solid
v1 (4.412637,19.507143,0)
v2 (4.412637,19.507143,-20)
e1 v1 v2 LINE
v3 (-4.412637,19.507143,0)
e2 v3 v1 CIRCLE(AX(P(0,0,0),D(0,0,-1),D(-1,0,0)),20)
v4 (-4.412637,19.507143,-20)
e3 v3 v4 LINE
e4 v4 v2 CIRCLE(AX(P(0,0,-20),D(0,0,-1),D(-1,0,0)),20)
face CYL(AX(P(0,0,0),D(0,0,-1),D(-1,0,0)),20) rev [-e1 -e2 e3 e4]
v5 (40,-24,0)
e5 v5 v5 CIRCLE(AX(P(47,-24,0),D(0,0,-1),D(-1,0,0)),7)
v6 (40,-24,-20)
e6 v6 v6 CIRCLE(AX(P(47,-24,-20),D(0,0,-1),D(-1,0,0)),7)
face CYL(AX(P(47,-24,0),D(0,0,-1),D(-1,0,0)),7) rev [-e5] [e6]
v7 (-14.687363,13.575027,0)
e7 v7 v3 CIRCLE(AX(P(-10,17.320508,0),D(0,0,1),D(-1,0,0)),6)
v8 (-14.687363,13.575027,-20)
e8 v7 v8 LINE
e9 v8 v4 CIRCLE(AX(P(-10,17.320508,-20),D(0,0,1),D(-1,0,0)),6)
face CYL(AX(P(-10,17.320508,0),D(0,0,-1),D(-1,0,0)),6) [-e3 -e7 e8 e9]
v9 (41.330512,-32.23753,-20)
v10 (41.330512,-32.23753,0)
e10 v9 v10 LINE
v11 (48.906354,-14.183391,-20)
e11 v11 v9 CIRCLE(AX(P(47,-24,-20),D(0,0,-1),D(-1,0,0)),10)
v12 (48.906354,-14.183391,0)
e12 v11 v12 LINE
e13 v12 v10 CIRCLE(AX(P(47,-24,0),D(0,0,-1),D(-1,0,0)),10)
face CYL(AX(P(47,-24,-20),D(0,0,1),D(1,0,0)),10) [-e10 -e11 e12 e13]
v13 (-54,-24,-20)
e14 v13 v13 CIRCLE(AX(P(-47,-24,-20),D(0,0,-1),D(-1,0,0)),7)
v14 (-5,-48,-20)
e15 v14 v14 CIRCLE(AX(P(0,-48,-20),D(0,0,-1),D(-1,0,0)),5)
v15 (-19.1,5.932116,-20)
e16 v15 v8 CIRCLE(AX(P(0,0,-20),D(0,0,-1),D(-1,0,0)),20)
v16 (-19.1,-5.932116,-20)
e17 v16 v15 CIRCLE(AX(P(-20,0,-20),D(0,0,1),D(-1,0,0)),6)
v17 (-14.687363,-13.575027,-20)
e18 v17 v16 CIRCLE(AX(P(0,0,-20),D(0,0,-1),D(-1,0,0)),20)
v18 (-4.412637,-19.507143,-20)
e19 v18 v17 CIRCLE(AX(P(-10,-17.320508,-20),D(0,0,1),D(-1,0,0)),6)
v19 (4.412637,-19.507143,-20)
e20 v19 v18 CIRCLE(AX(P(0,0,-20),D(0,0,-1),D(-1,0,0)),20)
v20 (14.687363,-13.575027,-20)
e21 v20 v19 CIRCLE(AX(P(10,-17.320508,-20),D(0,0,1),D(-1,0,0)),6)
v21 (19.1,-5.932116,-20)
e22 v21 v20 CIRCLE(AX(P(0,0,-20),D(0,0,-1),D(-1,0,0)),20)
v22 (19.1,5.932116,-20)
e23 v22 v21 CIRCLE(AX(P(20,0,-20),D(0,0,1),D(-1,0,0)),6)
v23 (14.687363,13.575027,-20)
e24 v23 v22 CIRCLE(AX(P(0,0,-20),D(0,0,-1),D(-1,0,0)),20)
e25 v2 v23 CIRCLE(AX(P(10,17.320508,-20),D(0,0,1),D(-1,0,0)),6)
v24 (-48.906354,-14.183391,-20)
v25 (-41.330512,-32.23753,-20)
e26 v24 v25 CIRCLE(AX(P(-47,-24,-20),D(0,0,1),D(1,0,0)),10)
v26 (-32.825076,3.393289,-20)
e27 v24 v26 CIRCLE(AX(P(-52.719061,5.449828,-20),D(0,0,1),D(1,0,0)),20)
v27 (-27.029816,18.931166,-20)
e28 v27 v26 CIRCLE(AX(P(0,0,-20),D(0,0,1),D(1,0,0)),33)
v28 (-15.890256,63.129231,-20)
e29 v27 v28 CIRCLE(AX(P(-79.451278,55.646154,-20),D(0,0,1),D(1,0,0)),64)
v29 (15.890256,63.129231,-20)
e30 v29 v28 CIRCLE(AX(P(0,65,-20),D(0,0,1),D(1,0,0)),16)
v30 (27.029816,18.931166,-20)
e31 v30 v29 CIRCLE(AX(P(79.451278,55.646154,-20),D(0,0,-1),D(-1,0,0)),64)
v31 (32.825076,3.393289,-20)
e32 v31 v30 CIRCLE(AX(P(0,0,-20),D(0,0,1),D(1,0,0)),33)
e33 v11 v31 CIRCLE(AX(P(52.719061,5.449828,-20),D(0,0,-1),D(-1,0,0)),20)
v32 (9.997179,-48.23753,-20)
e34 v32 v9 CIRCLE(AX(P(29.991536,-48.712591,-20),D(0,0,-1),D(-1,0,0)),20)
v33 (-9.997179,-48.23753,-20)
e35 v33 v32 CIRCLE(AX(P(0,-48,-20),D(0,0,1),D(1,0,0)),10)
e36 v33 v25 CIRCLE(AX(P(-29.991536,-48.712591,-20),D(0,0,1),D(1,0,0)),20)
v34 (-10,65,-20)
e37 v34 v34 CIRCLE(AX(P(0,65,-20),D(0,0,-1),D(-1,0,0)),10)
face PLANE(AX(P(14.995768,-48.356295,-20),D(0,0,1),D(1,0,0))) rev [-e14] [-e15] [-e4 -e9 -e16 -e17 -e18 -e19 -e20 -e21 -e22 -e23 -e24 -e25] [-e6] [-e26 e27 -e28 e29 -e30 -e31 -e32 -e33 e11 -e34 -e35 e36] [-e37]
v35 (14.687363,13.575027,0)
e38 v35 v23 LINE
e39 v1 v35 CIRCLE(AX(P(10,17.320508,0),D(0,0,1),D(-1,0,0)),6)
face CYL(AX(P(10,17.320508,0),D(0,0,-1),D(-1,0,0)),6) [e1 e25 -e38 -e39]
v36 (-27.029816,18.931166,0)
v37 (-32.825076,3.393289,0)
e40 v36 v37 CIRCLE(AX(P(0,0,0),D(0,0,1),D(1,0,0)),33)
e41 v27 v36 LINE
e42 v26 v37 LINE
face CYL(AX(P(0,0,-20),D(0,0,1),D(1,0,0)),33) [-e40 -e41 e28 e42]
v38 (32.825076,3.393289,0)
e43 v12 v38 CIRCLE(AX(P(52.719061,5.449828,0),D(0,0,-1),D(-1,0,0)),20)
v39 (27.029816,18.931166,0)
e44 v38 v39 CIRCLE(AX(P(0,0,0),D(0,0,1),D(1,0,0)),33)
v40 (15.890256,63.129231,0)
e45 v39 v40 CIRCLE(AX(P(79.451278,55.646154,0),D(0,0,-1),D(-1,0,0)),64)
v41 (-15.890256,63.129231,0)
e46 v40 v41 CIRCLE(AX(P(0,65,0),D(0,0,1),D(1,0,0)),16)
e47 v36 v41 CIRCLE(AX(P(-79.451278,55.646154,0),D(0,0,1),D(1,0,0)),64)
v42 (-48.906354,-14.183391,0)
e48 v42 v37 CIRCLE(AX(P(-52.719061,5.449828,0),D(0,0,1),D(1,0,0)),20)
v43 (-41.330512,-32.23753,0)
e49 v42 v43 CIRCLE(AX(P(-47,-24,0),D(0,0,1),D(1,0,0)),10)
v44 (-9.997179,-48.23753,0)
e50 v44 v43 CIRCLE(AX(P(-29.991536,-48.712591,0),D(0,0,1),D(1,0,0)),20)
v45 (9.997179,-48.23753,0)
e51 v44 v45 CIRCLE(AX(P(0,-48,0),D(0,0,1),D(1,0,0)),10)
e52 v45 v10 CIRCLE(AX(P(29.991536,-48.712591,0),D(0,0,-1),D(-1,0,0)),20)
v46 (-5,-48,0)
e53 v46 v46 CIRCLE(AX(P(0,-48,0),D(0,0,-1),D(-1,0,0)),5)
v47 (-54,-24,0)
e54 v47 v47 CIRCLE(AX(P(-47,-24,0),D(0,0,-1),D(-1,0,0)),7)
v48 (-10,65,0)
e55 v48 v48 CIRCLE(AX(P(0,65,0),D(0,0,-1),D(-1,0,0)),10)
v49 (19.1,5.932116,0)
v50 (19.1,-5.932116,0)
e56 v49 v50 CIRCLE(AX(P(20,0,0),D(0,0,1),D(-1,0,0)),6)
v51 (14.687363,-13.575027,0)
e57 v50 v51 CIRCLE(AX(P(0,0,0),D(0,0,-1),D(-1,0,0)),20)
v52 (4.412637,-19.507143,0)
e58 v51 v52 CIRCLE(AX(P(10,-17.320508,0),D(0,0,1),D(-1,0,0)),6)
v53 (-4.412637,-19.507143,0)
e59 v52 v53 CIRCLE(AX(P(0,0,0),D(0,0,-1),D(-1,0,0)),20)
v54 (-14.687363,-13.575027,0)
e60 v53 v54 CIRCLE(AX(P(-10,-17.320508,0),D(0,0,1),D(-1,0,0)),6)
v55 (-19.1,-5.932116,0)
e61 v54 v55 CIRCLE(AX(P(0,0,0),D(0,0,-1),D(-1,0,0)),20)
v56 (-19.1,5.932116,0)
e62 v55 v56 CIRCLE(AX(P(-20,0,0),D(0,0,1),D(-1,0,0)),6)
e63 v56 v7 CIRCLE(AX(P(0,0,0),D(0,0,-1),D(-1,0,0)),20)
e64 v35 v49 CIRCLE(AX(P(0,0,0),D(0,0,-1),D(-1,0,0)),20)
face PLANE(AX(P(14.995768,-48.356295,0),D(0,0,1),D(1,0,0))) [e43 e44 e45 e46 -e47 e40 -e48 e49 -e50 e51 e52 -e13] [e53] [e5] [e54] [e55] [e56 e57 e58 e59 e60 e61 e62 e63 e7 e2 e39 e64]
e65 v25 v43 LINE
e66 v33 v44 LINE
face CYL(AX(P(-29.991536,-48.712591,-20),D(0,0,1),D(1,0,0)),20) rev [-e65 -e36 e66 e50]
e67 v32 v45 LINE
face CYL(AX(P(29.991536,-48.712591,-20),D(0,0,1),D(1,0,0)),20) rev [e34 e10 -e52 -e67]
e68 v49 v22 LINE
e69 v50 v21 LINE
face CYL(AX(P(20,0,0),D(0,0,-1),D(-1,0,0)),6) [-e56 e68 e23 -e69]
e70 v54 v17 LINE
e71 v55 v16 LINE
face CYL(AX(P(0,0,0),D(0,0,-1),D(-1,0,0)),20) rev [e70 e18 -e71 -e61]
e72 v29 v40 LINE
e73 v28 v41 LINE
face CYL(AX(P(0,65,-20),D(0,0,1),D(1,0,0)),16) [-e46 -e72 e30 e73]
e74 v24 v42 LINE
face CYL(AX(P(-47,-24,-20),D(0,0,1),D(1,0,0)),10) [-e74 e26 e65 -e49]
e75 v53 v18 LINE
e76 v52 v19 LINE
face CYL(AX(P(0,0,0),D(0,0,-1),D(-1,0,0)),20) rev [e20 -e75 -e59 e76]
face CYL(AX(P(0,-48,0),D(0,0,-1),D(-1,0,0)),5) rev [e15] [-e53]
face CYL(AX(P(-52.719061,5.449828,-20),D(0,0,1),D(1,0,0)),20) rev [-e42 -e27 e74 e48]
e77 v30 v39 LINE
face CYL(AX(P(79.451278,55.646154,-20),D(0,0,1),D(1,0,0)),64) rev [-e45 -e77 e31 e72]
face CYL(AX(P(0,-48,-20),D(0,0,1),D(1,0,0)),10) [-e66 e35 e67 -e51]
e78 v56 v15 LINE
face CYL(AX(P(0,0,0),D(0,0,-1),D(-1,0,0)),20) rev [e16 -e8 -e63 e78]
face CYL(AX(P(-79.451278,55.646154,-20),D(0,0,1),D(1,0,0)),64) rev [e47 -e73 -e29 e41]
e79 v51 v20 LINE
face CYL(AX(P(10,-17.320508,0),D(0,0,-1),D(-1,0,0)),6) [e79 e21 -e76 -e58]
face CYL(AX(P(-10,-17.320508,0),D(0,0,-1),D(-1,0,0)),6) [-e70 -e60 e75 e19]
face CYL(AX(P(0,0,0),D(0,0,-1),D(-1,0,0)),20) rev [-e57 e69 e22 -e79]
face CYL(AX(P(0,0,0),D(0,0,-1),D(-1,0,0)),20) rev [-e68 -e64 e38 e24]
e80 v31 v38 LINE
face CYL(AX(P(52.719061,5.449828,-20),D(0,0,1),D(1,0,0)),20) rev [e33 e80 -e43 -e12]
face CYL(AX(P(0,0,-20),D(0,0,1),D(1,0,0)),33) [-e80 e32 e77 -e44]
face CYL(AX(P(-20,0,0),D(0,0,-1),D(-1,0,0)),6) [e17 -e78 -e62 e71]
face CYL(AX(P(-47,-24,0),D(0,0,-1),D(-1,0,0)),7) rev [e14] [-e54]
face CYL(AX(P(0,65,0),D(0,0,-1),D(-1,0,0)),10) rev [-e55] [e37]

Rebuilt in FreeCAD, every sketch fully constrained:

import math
import FreeCAD as App
import Part
import Sketcher
from FreeCAD import Vector

doc = App.newDocument("Part")
body = doc.addObject("PartDesign::Body", "Body")

# Sketch on XY plane
sketch1 = body.newObject("Sketcher::SketchObject", "Sketch")
sketch1.AttachmentSupport = (doc.getObject("XY_Plane"), [""])
sketch1.MapMode = "FlatFace"
sketch1.addGeometry([
    Part.ArcOfCircle(Part.Circle(Vector(0, 0, 0), Vector(0, 0, 1), 33), math.radians(6), math.radians(35)),  # 0
    Part.ArcOfCircle(Part.Circle(Vector(79, 56, 0), Vector(0, 0, 1), 64), math.radians(173), math.radians(215)),  # 1
    Part.ArcOfCircle(Part.Circle(Vector(0, 65, 0), Vector(0, 0, 1), 16), math.radians(-7), math.radians(187)),  # 2
    Part.ArcOfCircle(Part.Circle(Vector(-79, 56, 0), Vector(0, 0, 1), 64), math.radians(-35), math.radians(7)),  # 3
    Part.ArcOfCircle(Part.Circle(Vector(0, 0, 0), Vector(0, 0, 1), 33), math.radians(145), math.radians(174)),  # 4
    Part.ArcOfCircle(Part.Circle(Vector(-53, 5, 0), Vector(0, 0, 1), 20), math.radians(-79), math.radians(-6)),  # 5
    Part.ArcOfCircle(Part.Circle(Vector(-47, -24, 0), Vector(0, 0, 1), 10), math.radians(101), math.radians(305)),  # 6
    Part.ArcOfCircle(Part.Circle(Vector(-30, -49, 0), Vector(0, 0, 1), 20), math.radians(1), math.radians(125)),  # 7
    Part.ArcOfCircle(Part.Circle(Vector(0, -48, 0), Vector(0, 0, 1), 10), math.radians(-179), math.radians(-1)),  # 8
    Part.ArcOfCircle(Part.Circle(Vector(30, -49, 0), Vector(0, 0, 1), 20), math.radians(55), math.radians(179)),  # 9
    Part.ArcOfCircle(Part.Circle(Vector(47, -24, 0), Vector(0, 0, 1), 10), math.radians(-125), math.radians(79)),  # 10
    Part.ArcOfCircle(Part.Circle(Vector(53, 5, 0), Vector(0, 0, 1), 20), math.radians(-174), math.radians(-101)),  # 11
], False)
sketch1.addConstraint([
    Sketcher.Constraint("Tangent", 0, 2, 1, 2),
    Sketcher.Constraint("Tangent", 1, 1, 2, 1),
    Sketcher.Constraint("Tangent", 2, 2, 3, 2),
    Sketcher.Constraint("Tangent", 3, 1, 4, 1),
    Sketcher.Constraint("Tangent", 4, 2, 5, 2),
    Sketcher.Constraint("Tangent", 5, 1, 6, 1),
    Sketcher.Constraint("Tangent", 6, 2, 7, 2),
    Sketcher.Constraint("Tangent", 7, 1, 8, 1),
    Sketcher.Constraint("Tangent", 8, 2, 9, 2),
    Sketcher.Constraint("Tangent", 9, 1, 10, 1),
    Sketcher.Constraint("Tangent", 10, 2, 11, 2),
    Sketcher.Constraint("Tangent", 11, 1, 0, 1),
    Sketcher.Constraint("Coincident", 0, 3, -1, 1),
    Sketcher.Constraint("Coincident", 4, 3, -1, 1),
    Sketcher.Constraint("Equal", 1, 3),
    Sketcher.Constraint("Equal", 0, 4),
    Sketcher.Constraint("Equal", 5, 7),
    Sketcher.Constraint("Equal", 6, 8),
    Sketcher.Constraint("Equal", 7, 9),
    Sketcher.Constraint("Equal", 8, 10),
    Sketcher.Constraint("Equal", 9, 11),
    Sketcher.Constraint("Symmetric", 7, 3, 9, 3, -2),
    Sketcher.Constraint("PointOnObject", 2, 3, -2),
    Sketcher.Constraint("Horizontal", 6, 3, 10, 3),
    Sketcher.Constraint("Radius", 0, 33.0),
    Sketcher.Constraint("Radius", 1, 64.0),
    Sketcher.Constraint("Radius", 2, 16.0),
    Sketcher.Constraint("Radius", 5, 20.0),
    Sketcher.Constraint("Radius", 6, 10.0),
    Sketcher.Constraint("DistanceY", -1, 1, 2, 3, 65.0),
    Sketcher.Constraint("DistanceX", 6, 3, -1, 1, 47.0),
    Sketcher.Constraint("DistanceY", 6, 3, -1, 1, 24.0),
    Sketcher.Constraint("DistanceY", 8, 3, -1, 1, 48.0),
])
pad1 = body.newObject("PartDesign::Pad", "Pad")
pad1.Profile = sketch1
pad1.Length = 20
pad1.Reversed = True

# Sketch on XY plane
sketch2 = body.newObject("Sketcher::SketchObject", "Sketch001")
sketch2.AttachmentSupport = (doc.getObject("XY_Plane"), [""])
sketch2.MapMode = "FlatFace"
sketch2.AttachmentOffset = App.Placement(Vector(0, 0, -20), App.Rotation())
sketch2.addGeometry([
    Part.Circle(Vector(0, 65, 0), Vector(0, 0, 1), 10),  # 0
    Part.Circle(Vector(-47, -24, 0), Vector(0, 0, 1), 7),  # 1
    Part.Circle(Vector(0, -48, 0), Vector(0, 0, 1), 5),  # 2
    Part.Circle(Vector(47, -24, 0), Vector(0, 0, 1), 7),  # 3
    Part.ArcOfCircle(Part.Circle(Vector(0, 0, 0), Vector(0, 0, 1), 20), math.radians(17), math.radians(43)),  # 4
    Part.ArcOfCircle(Part.Circle(Vector(20, 0, 0), Vector(0, 0, 1), 6), math.radians(99), math.radians(261)),  # 5
    Part.ArcOfCircle(Part.Circle(Vector(0, 0, 0), Vector(0, 0, 1), 20), math.radians(-43), math.radians(-17)),  # 6
    Part.ArcOfCircle(Part.Circle(Vector(10, -17, 0), Vector(0, 0, 1), 6), math.radians(39), math.radians(201)),  # 7
    Part.ArcOfCircle(Part.Circle(Vector(0, 0, 0), Vector(0, 0, 1), 20), math.radians(-103), math.radians(-77)),  # 8
    Part.ArcOfCircle(Part.Circle(Vector(-10, -17, 0), Vector(0, 0, 1), 6), math.radians(-21), math.radians(141)),  # 9
    Part.ArcOfCircle(Part.Circle(Vector(0, 0, 0), Vector(0, 0, 1), 20), math.radians(-163), math.radians(-137)),  # 10
    Part.ArcOfCircle(Part.Circle(Vector(-20, 0, 0), Vector(0, 0, 1), 6), math.radians(-81), math.radians(81)),  # 11
    Part.ArcOfCircle(Part.Circle(Vector(0, 0, 0), Vector(0, 0, 1), 20), math.radians(137), math.radians(163)),  # 12
    Part.ArcOfCircle(Part.Circle(Vector(-10, 17, 0), Vector(0, 0, 1), 6), math.radians(-141), math.radians(21)),  # 13
    Part.ArcOfCircle(Part.Circle(Vector(0, 0, 0), Vector(0, 0, 1), 20), math.radians(77), math.radians(103)),  # 14
    Part.ArcOfCircle(Part.Circle(Vector(10, 17, 0), Vector(0, 0, 1), 6), math.radians(159), math.radians(321)),  # 15
], False)
sketch2.addConstraint([
    Sketcher.Constraint("Coincident", 4, 1, 5, 1),
    Sketcher.Constraint("Coincident", 5, 2, 6, 2),
    Sketcher.Constraint("Coincident", 6, 1, 7, 1),
    Sketcher.Constraint("Coincident", 7, 2, 8, 2),
    Sketcher.Constraint("Coincident", 8, 1, 9, 1),
    Sketcher.Constraint("Coincident", 9, 2, 10, 2),
    Sketcher.Constraint("Coincident", 10, 1, 11, 1),
    Sketcher.Constraint("Coincident", 11, 2, 12, 2),
    Sketcher.Constraint("Coincident", 12, 1, 13, 1),
    Sketcher.Constraint("Coincident", 13, 2, 14, 2),
    Sketcher.Constraint("Coincident", 14, 1, 15, 1),
    Sketcher.Constraint("Coincident", 15, 2, 4, 2),
    Sketcher.Constraint("Coincident", 4, 3, -1, 1),
    Sketcher.Constraint("Coincident", 6, 3, -1, 1),
    Sketcher.Constraint("Coincident", 8, 3, -1, 1),
    Sketcher.Constraint("Coincident", 10, 3, -1, 1),
    Sketcher.Constraint("Coincident", 12, 3, -1, 1),
    Sketcher.Constraint("Coincident", 14, 3, -1, 1),
    Sketcher.Constraint("Equal", 1, 3),
    Sketcher.Constraint("Equal", 4, 6),
    Sketcher.Constraint("Equal", 5, 7),
    Sketcher.Constraint("Equal", 6, 8),
    Sketcher.Constraint("Equal", 7, 9),
    Sketcher.Constraint("Equal", 8, 10),
    Sketcher.Constraint("Equal", 9, 11),
    Sketcher.Constraint("Equal", 10, 12),
    Sketcher.Constraint("Equal", 11, 13),
    Sketcher.Constraint("Equal", 12, 14),
    Sketcher.Constraint("Equal", 13, 15),
    Sketcher.Constraint("Symmetric", 5, 3, 11, 3, -1, 1),
    Sketcher.Constraint("Symmetric", 7, 3, 13, 3, -1, 1),
    Sketcher.Constraint("Symmetric", 9, 3, 15, 3, -1, 1),
    Sketcher.Constraint("Symmetric", 1, 3, 3, 3, -2),
    Sketcher.Constraint("Symmetric", 7, 3, 9, 3, -2),
    Sketcher.Constraint("PointOnObject", 0, 3, -2),
    Sketcher.Constraint("PointOnObject", 2, 3, -2),
    Sketcher.Constraint("PointOnObject", 5, 3, -1),
    Sketcher.Constraint("Diameter", 0, 20.0),
    Sketcher.Constraint("Diameter", 1, 14.0),
    Sketcher.Constraint("Diameter", 2, 10.0),
    Sketcher.Constraint("Radius", 4, 20.0),
    Sketcher.Constraint("Radius", 5, 6.0),
    Sketcher.Constraint("DistanceY", -1, 1, 0, 3, 65.0),
    Sketcher.Constraint("DistanceX", 1, 3, -1, 1, 47.0),
    Sketcher.Constraint("DistanceY", 1, 3, -1, 1, 24.0),
    Sketcher.Constraint("DistanceY", 2, 3, -1, 1, 48.0),
    Sketcher.Constraint("DistanceX", -1, 1, 5, 3, 20.0),
    Sketcher.Constraint("DistanceX", -1, 1, 7, 3, 10.0),
    Sketcher.Constraint("DistanceY", 7, 3, -1, 1, 17.320508),
])
pocket1 = body.newObject("PartDesign::Pocket", "Pocket")
pocket1.Profile = sketch2
pocket1.Type = "ThroughAll"
pocket1.Reversed = True

doc.recompute()
